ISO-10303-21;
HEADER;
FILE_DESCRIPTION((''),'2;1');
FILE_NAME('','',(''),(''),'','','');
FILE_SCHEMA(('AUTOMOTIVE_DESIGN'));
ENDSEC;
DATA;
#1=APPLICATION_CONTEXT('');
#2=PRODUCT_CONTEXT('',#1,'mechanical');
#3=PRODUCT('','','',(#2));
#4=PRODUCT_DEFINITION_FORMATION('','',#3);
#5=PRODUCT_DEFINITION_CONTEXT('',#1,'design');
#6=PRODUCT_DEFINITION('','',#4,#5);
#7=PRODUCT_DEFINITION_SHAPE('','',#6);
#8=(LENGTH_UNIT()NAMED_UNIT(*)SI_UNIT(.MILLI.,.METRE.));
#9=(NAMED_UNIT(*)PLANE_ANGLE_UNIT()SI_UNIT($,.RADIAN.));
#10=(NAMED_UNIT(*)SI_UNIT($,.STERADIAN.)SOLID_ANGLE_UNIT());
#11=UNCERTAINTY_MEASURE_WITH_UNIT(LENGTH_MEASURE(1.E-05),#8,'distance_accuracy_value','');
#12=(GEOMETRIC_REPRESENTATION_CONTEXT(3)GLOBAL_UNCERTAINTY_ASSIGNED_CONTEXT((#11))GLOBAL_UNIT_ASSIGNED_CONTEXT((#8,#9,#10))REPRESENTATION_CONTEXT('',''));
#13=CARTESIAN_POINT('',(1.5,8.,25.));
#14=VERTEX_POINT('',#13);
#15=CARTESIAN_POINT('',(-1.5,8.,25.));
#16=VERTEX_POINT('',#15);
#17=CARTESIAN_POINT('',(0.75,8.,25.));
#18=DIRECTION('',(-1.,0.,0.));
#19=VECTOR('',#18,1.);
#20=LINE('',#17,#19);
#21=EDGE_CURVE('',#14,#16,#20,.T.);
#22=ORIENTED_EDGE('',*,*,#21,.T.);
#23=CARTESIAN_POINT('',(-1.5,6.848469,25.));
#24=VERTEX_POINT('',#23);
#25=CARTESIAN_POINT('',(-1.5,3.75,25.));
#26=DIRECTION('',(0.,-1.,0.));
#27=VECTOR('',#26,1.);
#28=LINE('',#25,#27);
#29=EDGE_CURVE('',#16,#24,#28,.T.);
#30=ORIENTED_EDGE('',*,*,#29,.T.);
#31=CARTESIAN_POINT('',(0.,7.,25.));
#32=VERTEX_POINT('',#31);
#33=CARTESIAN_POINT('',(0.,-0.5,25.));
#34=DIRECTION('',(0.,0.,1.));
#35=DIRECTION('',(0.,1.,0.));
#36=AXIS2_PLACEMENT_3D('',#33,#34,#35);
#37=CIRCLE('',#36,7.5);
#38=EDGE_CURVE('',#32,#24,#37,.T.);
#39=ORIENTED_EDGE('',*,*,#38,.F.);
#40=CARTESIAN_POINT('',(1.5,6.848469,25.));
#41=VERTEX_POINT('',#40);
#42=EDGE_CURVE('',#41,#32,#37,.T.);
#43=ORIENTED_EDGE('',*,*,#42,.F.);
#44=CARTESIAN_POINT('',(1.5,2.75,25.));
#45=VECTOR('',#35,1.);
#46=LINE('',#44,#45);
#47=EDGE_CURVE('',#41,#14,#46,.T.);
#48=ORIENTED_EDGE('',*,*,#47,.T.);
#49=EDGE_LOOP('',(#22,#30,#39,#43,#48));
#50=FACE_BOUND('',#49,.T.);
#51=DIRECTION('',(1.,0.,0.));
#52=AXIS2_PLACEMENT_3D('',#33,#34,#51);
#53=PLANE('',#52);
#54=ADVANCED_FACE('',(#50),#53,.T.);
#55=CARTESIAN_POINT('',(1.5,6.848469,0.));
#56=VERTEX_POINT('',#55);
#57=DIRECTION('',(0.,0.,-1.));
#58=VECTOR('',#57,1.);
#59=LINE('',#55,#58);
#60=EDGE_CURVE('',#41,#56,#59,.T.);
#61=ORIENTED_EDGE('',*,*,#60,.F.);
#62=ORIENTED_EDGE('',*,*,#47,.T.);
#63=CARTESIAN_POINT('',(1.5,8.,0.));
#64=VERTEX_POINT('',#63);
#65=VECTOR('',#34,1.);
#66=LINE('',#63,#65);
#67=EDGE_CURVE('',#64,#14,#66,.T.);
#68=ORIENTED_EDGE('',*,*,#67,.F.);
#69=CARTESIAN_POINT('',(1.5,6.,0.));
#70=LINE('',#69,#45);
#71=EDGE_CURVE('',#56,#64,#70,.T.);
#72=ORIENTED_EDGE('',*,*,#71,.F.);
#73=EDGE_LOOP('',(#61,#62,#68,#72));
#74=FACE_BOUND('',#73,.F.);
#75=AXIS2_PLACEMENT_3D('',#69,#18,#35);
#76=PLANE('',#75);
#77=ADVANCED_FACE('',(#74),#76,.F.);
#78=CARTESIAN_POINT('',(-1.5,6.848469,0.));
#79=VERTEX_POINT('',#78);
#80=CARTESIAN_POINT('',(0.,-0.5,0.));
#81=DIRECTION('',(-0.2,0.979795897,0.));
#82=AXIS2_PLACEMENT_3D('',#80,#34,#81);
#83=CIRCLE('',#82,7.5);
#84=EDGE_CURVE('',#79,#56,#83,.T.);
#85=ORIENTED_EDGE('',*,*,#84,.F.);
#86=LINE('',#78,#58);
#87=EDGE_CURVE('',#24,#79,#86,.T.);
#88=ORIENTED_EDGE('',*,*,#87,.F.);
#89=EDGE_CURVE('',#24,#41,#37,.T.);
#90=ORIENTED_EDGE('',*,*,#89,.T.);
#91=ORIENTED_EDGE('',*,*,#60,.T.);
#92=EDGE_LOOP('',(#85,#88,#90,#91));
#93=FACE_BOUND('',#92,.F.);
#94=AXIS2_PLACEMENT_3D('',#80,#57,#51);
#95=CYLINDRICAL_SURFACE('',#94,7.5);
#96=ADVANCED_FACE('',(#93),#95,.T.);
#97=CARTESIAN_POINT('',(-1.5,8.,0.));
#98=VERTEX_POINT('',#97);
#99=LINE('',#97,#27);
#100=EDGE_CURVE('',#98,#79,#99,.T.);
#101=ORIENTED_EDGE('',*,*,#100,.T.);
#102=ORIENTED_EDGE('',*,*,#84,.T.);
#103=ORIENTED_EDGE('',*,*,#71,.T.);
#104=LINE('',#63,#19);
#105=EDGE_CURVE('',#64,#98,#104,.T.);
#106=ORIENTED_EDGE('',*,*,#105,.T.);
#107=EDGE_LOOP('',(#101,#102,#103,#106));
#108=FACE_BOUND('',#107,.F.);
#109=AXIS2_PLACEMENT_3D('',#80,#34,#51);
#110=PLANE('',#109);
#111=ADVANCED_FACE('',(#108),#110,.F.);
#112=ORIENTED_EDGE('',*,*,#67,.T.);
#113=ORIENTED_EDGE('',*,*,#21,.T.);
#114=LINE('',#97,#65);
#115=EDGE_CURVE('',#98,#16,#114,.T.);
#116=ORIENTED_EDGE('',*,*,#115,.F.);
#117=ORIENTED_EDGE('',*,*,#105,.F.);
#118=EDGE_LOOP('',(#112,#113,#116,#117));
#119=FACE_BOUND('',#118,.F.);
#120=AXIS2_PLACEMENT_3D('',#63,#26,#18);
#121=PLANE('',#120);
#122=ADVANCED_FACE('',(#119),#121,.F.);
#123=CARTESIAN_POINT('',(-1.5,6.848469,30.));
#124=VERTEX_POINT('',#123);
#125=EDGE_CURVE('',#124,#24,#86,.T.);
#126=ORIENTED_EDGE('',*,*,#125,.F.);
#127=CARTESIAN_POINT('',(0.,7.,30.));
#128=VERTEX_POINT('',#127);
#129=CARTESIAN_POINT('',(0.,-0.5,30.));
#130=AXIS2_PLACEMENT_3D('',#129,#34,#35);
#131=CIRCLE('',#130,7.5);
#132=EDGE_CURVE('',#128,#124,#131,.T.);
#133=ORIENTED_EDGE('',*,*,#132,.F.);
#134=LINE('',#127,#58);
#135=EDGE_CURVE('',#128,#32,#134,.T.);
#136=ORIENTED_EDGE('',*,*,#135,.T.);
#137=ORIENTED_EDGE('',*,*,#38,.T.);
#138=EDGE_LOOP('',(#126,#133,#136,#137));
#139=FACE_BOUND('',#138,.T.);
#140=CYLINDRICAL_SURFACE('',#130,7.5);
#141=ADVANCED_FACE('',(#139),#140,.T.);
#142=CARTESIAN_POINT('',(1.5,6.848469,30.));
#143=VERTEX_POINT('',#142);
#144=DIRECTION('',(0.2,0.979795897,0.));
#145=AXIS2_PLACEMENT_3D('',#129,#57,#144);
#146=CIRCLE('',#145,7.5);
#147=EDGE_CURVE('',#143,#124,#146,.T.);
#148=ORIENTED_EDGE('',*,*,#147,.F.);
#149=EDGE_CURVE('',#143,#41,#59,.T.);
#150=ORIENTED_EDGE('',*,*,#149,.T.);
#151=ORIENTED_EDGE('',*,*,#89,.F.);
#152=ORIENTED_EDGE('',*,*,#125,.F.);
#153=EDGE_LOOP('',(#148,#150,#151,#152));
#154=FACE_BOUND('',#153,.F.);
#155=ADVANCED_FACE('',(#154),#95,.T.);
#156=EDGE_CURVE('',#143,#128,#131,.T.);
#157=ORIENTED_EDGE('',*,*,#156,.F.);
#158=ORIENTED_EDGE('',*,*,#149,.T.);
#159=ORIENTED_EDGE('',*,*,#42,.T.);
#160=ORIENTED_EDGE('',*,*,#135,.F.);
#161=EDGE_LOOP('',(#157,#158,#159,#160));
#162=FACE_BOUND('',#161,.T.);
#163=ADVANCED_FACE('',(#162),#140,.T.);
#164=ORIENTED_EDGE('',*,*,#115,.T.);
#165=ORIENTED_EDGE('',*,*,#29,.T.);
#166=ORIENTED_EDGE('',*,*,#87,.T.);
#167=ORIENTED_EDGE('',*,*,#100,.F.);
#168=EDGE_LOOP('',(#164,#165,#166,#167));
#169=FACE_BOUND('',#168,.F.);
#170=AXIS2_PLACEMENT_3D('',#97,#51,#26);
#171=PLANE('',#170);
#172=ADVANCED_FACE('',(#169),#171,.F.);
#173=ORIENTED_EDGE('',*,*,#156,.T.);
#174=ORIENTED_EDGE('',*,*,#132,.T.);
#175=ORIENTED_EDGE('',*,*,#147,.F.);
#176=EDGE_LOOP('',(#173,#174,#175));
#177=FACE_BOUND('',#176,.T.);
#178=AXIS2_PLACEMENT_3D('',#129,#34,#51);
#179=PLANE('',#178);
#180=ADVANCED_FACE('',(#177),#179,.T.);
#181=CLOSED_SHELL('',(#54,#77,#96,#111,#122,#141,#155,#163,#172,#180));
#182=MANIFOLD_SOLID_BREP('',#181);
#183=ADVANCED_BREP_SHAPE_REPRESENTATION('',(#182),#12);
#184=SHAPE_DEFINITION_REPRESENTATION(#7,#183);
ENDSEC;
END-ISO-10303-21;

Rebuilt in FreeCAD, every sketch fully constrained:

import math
import FreeCAD as App
import Part
import Sketcher
Q = App.Units.Quantity

doc = App.newDocument("Part")
params = doc.addObject("Spreadsheet::Sheet", "Params")
for row, (alias, value) in enumerate([
    ("sketch1_radius", "7.5 mm"),
    ("sketch1_width", "3 mm"),
    ("pad1_length", "30 mm"),
    ("sketch2_diameter", "18 mm"),
    ("sketch2_diameter2", "15 mm"),
    ("pocket1_length", "5 mm"),
], start=1):
    params.set(f"A{row}", alias)
    params.set(f"B{row}", "=" + value)
    params.setAlias(f"B{row}", alias)

body = doc.addObject("PartDesign::Body", "Body")

# Sketch on XY plane
sketch1 = doc.addObject("Sketcher::SketchObject", "Sketch")
body.addObject(sketch1)
sketch1.AttachmentSupport = (doc.XY_Plane, [""])
sketch1.MapMode = "FlatFace"
sketch1.addGeometry([
    Part.ArcOfCircle(Part.Circle(App.Vector(0, -0.5, 0), App.Vector(0, 0, 1), 7.5), math.radians(102), math.radians(438)),
    Part.LineSegment(App.Vector(1.5, 6.8, 0), App.Vector(1.5, 8, 0)),
    Part.LineSegment(App.Vector(1.5, 8, 0), App.Vector(-1.5, 8, 0)),
    Part.LineSegment(App.Vector(-1.5, 8, 0), App.Vector(-1.5, 6.8, 0)),
], False)
sketch1.addConstraint([
    Sketcher.Constraint("Coincident", 0, 2, 1, 1),
    Sketcher.Constraint("Coincident", 1, 2, 2, 1),
    Sketcher.Constraint("Coincident", 2, 2, 3, 1),
    Sketcher.Constraint("Coincident", 3, 2, 0, 1),
    Sketcher.Constraint("Vertical", 1),
    Sketcher.Constraint("Horizontal", 2),
    Sketcher.Constraint("Vertical", 3),
    Sketcher.Constraint("Symmetric", 0, 2, 3, 2, -2),
    Sketcher.Constraint("Radius", 0, Q("7.5 mm")),
    Sketcher.Constraint("DistanceX", 2, 2, 2, 1, Q("3 mm")),
    Sketcher.Constraint("DistanceY", -1, 1, 1, 2, Q("8 mm")),
    Sketcher.Constraint("DistanceY", 0, 3, -1, 1, Q("0.5 mm")),
])
sketch1.setExpression("Constraints[8]", "Params.sketch1_radius")
sketch1.setExpression("Constraints[9]", "Params.sketch1_width")
pad1 = doc.addObject("PartDesign::Pad", "Pad")
body.addObject(pad1)
pad1.Profile = sketch1
pad1.setExpression("Length", "Params.pad1_length")

# Sketch on XY plane
sketch2 = doc.addObject("Sketcher::SketchObject", "Sketch001")
body.addObject(sketch2)
sketch2.AttachmentSupport = (doc.XY_Plane, [""])
sketch2.MapMode = "FlatFace"
sketch2.AttachmentOffset = App.Placement(App.Vector(0, 0, 30), App.Rotation())
sketch2.addGeometry([
    Part.Circle(App.Vector(0, 0, 0), App.Vector(0, 0, 1), 9),
    Part.Circle(App.Vector(0, 0, 0), App.Vector(0, 0, 1), 8),
], False)
sketch2.addConstraint([
    Sketcher.Constraint("Coincident", 1, 3, 0, 3),
    Sketcher.Constraint("PointOnObject", 0, 3, -2),
    Sketcher.Constraint("Diameter", 0, Q("18 mm")),
    Sketcher.Constraint("Diameter", 1, Q("15 mm")),
    Sketcher.Constraint("DistanceY", 0, 3, -1, 1, Q("0.5 mm")),
])
sketch2.setExpression("Constraints[2]", "Params.sketch2_diameter")
sketch2.setExpression("Constraints[3]", "Params.sketch2_diameter2")
pocket1 = doc.addObject("PartDesign::Pocket", "Pocket")
body.addObject(pocket1)
pocket1.Profile = sketch2
pocket1.setExpression("Length", "Params.pocket1_length")

doc.recompute()
